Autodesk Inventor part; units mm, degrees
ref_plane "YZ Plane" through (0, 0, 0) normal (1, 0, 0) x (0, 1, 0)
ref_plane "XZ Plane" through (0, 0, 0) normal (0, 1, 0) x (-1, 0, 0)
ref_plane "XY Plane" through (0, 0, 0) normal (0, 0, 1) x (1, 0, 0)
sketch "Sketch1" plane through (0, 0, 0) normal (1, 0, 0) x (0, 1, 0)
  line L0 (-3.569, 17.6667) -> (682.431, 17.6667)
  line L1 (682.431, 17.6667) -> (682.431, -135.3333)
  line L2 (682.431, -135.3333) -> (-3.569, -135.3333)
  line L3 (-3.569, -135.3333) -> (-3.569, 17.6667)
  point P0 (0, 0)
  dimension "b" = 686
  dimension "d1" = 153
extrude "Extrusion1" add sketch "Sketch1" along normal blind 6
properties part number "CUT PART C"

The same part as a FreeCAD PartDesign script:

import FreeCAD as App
import Part
import Sketcher
from FreeCAD import Vector

doc = App.newDocument("Part")
body = doc.addObject("PartDesign::Body", "Body")

# Sketch on YZ plane
sketch1 = body.newObject("Sketcher::SketchObject", "Sketch")
sketch1.AttachmentSupport = (doc.getObject("YZ_Plane"), [""])
sketch1.MapMode = "FlatFace"
sketch1.addGeometry(Part.LineSegment(Vector(682, 18, 0), Vector(-4, 18, 0)), False)
sketch1.addGeometry(Part.LineSegment(Vector(-4, 18, 0), Vector(-4, -135, 0)), False)
sketch1.addGeometry(Part.LineSegment(Vector(-4, -135, 0), Vector(682, -135, 0)), False)
sketch1.addGeometry(Part.LineSegment(Vector(682, -135, 0), Vector(682, 18, 0)), False)
sketch1.addConstraint(Sketcher.Constraint("Coincident", 0, 2, 1, 1))
sketch1.addConstraint(Sketcher.Constraint("Coincident", 1, 2, 2, 1))
sketch1.addConstraint(Sketcher.Constraint("Coincident", 2, 2, 3, 1))
sketch1.addConstraint(Sketcher.Constraint("Coincident", 3, 2, 0, 1))
sketch1.addConstraint(Sketcher.Constraint("Horizontal", 0))
sketch1.addConstraint(Sketcher.Constraint("Vertical", 1))
sketch1.addConstraint(Sketcher.Constraint("Horizontal", 2))
sketch1.addConstraint(Sketcher.Constraint("Vertical", 3))
sketch1.addConstraint(Sketcher.Constraint("DistanceX", 0, 2, 0, 1, 686.0))
sketch1.addConstraint(Sketcher.Constraint("DistanceY", 1, 2, 1, 1, 153.0))
sketch1.addConstraint(Sketcher.Constraint("DistanceX", 0, 2, -1, 1, 3.569))
sketch1.addConstraint(Sketcher.Constraint("DistanceY", -1, 1, 0, 2, 17.6667))
pad1 = body.newObject("PartDesign::Pad", "Pad")
pad1.Profile = sketch1
pad1.Length = 6

doc.recompute()
